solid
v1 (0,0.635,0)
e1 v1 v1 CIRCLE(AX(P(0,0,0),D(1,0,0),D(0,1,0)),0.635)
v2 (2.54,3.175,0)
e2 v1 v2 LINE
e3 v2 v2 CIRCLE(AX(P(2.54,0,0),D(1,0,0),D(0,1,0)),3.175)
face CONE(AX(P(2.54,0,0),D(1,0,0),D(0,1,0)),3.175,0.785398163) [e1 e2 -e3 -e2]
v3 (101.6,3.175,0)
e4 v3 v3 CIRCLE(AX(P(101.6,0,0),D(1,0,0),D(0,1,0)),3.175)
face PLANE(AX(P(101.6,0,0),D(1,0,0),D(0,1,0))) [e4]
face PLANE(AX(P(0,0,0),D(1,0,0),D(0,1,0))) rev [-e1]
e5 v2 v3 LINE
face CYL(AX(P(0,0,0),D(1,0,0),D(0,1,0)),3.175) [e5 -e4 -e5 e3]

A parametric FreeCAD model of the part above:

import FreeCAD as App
import Part
import Sketcher
from FreeCAD import Vector
Q = App.Units.Quantity


def edges_at(feature, points):
    """Names of the edges that pass closest to the given points."""
    edges = feature.Shape.Edges
    near = lambda p: min(range(len(edges)), key=lambda i: edges[i].distToShape(Part.Vertex(*p))[0])
    return sorted({f"Edge{near(p) + 1}" for p in points})


def add_polygon(sketch, points):
    """Adds a closed chain of lines whose ends are joined by coincident constraints."""
    first, n = sketch.GeometryCount, len(points)
    for a, b in zip(points, points[1:] + points[:1]):
        sketch.addGeometry(Part.LineSegment(App.Vector(*a, 0), App.Vector(*b, 0)), False)
    for i in range(n):
        sketch.addConstraint(Sketcher.Constraint("Coincident", first + i, 2, first + (i + 1) % n, 1))

doc = App.newDocument("Part")
body = doc.addObject("PartDesign::Body", "Body")

# Sketch on XY plane
sketch1 = body.newObject("Sketcher::SketchObject", "Sketch")
sketch1.AttachmentSupport = (doc.getObject("XY_Plane"), [""])
sketch1.MapMode = "FlatFace"
add_polygon(sketch1, [(0, 3.2), (0, 0), (101.6, 0), (101.6, 3.2)])  # lines 0-3
sketch1.addConstraint([
    Sketcher.Constraint("Vertical", 0),
    Sketcher.Constraint("Horizontal", 1),
    Sketcher.Constraint("Vertical", 2),
    Sketcher.Constraint("Horizontal", 3),
    Sketcher.Constraint("Coincident", 0, 2, -1, 1),
    Sketcher.Constraint("DistanceX", 1, 1, 1, 2, Q("4 in")),
    Sketcher.Constraint("DistanceY", 0, 2, 0, 1, Q("0.125 in")),
])
revolution = body.newObject("PartDesign::Revolution", "Revolution")
revolution.Profile = sketch1
revolution.ReferenceAxis = (sketch1, ["H_Axis"])
revolution.Angle = 360
doc.recompute()

chamfer = body.newObject("PartDesign::Chamfer", "Chamfer")
chamfer.Base = (revolution, edges_at(revolution, [(0, -3.175, 0)]))
chamfer.Size = Q("0.1 in")

doc.recompute()
